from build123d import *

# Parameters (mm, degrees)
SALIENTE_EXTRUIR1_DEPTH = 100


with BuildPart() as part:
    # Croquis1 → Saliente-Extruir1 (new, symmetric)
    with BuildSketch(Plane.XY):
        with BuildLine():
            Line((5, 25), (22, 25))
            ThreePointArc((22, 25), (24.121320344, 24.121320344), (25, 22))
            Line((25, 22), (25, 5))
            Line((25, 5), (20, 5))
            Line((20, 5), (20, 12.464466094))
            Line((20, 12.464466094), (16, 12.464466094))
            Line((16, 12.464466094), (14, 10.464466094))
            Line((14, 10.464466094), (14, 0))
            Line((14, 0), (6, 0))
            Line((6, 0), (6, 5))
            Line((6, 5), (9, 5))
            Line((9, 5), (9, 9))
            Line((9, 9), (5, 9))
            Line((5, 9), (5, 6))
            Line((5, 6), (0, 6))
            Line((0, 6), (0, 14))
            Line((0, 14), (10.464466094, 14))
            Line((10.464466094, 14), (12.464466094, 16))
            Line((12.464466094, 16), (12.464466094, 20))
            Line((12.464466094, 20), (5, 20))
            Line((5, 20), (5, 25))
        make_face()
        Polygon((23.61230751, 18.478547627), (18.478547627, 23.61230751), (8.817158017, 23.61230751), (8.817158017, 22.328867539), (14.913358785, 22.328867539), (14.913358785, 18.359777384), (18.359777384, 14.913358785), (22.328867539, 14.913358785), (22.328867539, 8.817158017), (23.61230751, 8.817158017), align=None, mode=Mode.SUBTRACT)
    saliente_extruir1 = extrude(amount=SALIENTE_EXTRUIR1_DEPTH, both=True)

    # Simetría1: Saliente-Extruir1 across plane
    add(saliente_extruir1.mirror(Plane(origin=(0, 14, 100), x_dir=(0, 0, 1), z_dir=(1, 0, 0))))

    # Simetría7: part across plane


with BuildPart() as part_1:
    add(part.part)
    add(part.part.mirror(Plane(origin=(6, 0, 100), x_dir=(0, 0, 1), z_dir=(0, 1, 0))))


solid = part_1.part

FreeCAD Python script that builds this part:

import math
import FreeCAD as App
import Part
import Sketcher

V = App.Vector

doc = App.newDocument("Part")
body = doc.addObject("PartDesign::Body", "Body")

sketch1 = body.newObject("Sketcher::SketchObject", "Sketch")
sketch1.AttachmentSupport = (doc.getObject("XY_Plane"), [""])
sketch1.MapMode = "FlatFace"
sketch1.addGeometry(Part.LineSegment(V(22, 25, 0), V(5, 25, 0)), False)
sketch1.addGeometry(Part.LineSegment(V(5, 25, 0), V(5, 20, 0)), False)
sketch1.addGeometry(Part.LineSegment(V(5, 20, 0), V(12.5, 20, 0)), False)
sketch1.addGeometry(Part.LineSegment(V(12.5, 20, 0), V(12.5, 16, 0)), False)
sketch1.addGeometry(Part.LineSegment(V(12.5, 16, 0), V(10.5, 14, 0)), False)
sketch1.addGeometry(Part.LineSegment(V(10.5, 14, 0), V(0, 14, 0)), False)
sketch1.addGeometry(Part.LineSegment(V(0, 14, 0), V(0, 6, 0)), False)
sketch1.addGeometry(Part.LineSegment(V(0, 6, 0), V(5, 6, 0)), False)
sketch1.addGeometry(Part.LineSegment(V(5, 6, 0), V(5, 9, 0)), False)
sketch1.addGeometry(Part.LineSegment(V(5, 9, 0), V(9, 9, 0)), False)
sketch1.addGeometry(Part.LineSegment(V(9, 9, 0), V(9, 5, 0)), False)
sketch1.addGeometry(Part.LineSegment(V(9, 5, 0), V(6, 5, 0)), False)
sketch1.addGeometry(Part.LineSegment(V(6, 5, 0), V(6, 0, 0)), False)
sketch1.addGeometry(Part.LineSegment(V(6, 0, 0), V(14, 0, 0)), False)
sketch1.addGeometry(Part.LineSegment(V(14, 0, 0), V(14, 10.5, 0)), False)
sketch1.addGeometry(Part.LineSegment(V(14, 10.5, 0), V(16, 12.5, 0)), False)
sketch1.addGeometry(Part.LineSegment(V(16, 12.5, 0), V(20, 12.5, 0)), False)
sketch1.addGeometry(Part.LineSegment(V(20, 12.5, 0), V(20, 5, 0)), False)
sketch1.addGeometry(Part.LineSegment(V(20, 5, 0), V(25, 5, 0)), False)
sketch1.addGeometry(Part.LineSegment(V(25, 5, 0), V(25, 22, 0)), False)
sketch1.addGeometry(Part.ArcOfCircle(Part.Circle(V(22, 22, 0), V(0, 0, 1), 3), math.radians(0), math.radians(90)), False)
sketch1.addGeometry(Part.LineSegment(V(23.6, 18.5, 0), V(23.6, 8.8, 0)), False)
sketch1.addGeometry(Part.LineSegment(V(23.6, 8.8, 0), V(22.3, 8.8, 0)), False)
sketch1.addGeometry(Part.LineSegment(V(22.3, 8.8, 0), V(22.3, 14.9, 0)), False)
sketch1.addGeometry(Part.LineSegment(V(22.3, 14.9, 0), V(18.4, 14.9, 0)), False)
sketch1.addGeometry(Part.LineSegment(V(18.4, 14.9, 0), V(14.9, 18.4, 0)), False)
sketch1.addGeometry(Part.LineSegment(V(14.9, 18.4, 0), V(14.9, 22.3, 0)), False)
sketch1.addGeometry(Part.LineSegment(V(14.9, 22.3, 0), V(8.8, 22.3, 0)), False)
sketch1.addGeometry(Part.LineSegment(V(8.8, 22.3, 0), V(8.8, 23.6, 0)), False)
sketch1.addGeometry(Part.LineSegment(V(8.8, 23.6, 0), V(18.5, 23.6, 0)), False)
sketch1.addGeometry(Part.LineSegment(V(18.5, 23.6, 0), V(23.6, 18.5, 0)), False)
sketch1.addConstraint(Sketcher.Constraint("Coincident", 0, 2, 1, 1))
sketch1.addConstraint(Sketcher.Constraint("Coincident", 1, 2, 2, 1))
sketch1.addConstraint(Sketcher.Constraint("Coincident", 2, 2, 3, 1))
sketch1.addConstraint(Sketcher.Constraint("Coincident", 3, 2, 4, 1))
sketch1.addConstraint(Sketcher.Constraint("Coincident", 4, 2, 5, 1))
sketch1.addConstraint(Sketcher.Constraint("Coincident", 5, 2, 6, 1))
sketch1.addConstraint(Sketcher.Constraint("Coincident", 6, 2, 7, 1))
sketch1.addConstraint(Sketcher.Constraint("Coincident", 7, 2, 8, 1))
sketch1.addConstraint(Sketcher.Constraint("Coincident", 8, 2, 9, 1))
sketch1.addConstraint(Sketcher.Constraint("Coincident", 9, 2, 10, 1))
sketch1.addConstraint(Sketcher.Constraint("Coincident", 10, 2, 11, 1))
sketch1.addConstraint(Sketcher.Constraint("Coincident", 11, 2, 12, 1))
sketch1.addConstraint(Sketcher.Constraint("Coincident", 12, 2, 13, 1))
sketch1.addConstraint(Sketcher.Constraint("Coincident", 13, 2, 14, 1))
sketch1.addConstraint(Sketcher.Constraint("Coincident", 14, 2, 15, 1))
sketch1.addConstraint(Sketcher.Constraint("Coincident", 15, 2, 16, 1))
sketch1.addConstraint(Sketcher.Constraint("Coincident", 16, 2, 17, 1))
sketch1.addConstraint(Sketcher.Constraint("Coincident", 17, 2, 18, 1))
sketch1.addConstraint(Sketcher.Constraint("Coincident", 18, 2, 19, 1))
sketch1.addConstraint(Sketcher.Constraint("Tangent", 19, 2, 20, 1))
sketch1.addConstraint(Sketcher.Constraint("Tangent", 20, 2, 0, 1))
sketch1.addConstraint(Sketcher.Constraint("Coincident", 21, 2, 22, 1))
sketch1.addConstraint(Sketcher.Constraint("Coincident", 22, 2, 23, 1))
sketch1.addConstraint(Sketcher.Constraint("Coincident", 23, 2, 24, 1))
sketch1.addConstraint(Sketcher.Constraint("Coincident", 24, 2, 25, 1))
sketch1.addConstraint(Sketcher.Constraint("Coincident", 25, 2, 26, 1))
sketch1.addConstraint(Sketcher.Constraint("Coincident", 26, 2, 27, 1))
sketch1.addConstraint(Sketcher.Constraint("Coincident", 27, 2, 28, 1))
sketch1.addConstraint(Sketcher.Constraint("Coincident", 28, 2, 29, 1))
sketch1.addConstraint(Sketcher.Constraint("Coincident", 29, 2, 30, 1))
sketch1.addConstraint(Sketcher.Constraint("Coincident", 30, 2, 21, 1))
sketch1.addConstraint(Sketcher.Constraint("Horizontal", 0))
sketch1.addConstraint(Sketcher.Constraint("Vertical", 1))
sketch1.addConstraint(Sketcher.Constraint("Horizontal", 2))
sketch1.addConstraint(Sketcher.Constraint("Vertical", 3))
sketch1.addConstraint(Sketcher.Constraint("Horizontal", 5))
sketch1.addConstraint(Sketcher.Constraint("Vertical", 6))
sketch1.addConstraint(Sketcher.Constraint("Horizontal", 7))
sketch1.addConstraint(Sketcher.Constraint("Vertical", 8))
sketch1.addConstraint(Sketcher.Constraint("Horizontal", 9))
sketch1.addConstraint(Sketcher.Constraint("Vertical", 10))
sketch1.addConstraint(Sketcher.Constraint("Horizontal", 11))
sketch1.addConstraint(Sketcher.Constraint("Vertical", 12))
sketch1.addConstraint(Sketcher.Constraint("Horizontal", 13))
sketch1.addConstraint(Sketcher.Constraint("Vertical", 14))
sketch1.addConstraint(Sketcher.Constraint("Horizontal", 16))
sketch1.addConstraint(Sketcher.Constraint("Vertical", 17))
sketch1.addConstraint(Sketcher.Constraint("Horizontal", 18))
sketch1.addConstraint(Sketcher.Constraint("Vertical", 19))
sketch1.addConstraint(Sketcher.Constraint("Vertical", 21))
sketch1.addConstraint(Sketcher.Constraint("Horizontal", 22))
sketch1.addConstraint(Sketcher.Constraint("Vertical", 23))
sketch1.addConstraint(Sketcher.Constraint("Horizontal", 24))
sketch1.addConstraint(Sketcher.Constraint("Vertical", 26))
sketch1.addConstraint(Sketcher.Constraint("Horizontal", 27))
sketch1.addConstraint(Sketcher.Constraint("Vertical", 28))
sketch1.addConstraint(Sketcher.Constraint("Horizontal", 29))
sketch1.addConstraint(Sketcher.Constraint("PointOnObject", 5, 2, -2))
sketch1.addConstraint(Sketcher.Constraint("PointOnObject", 12, 2, -1))
sketch1.addConstraint(Sketcher.Constraint("Parallel", 4, 15))
sketch1.addConstraint(Sketcher.Constraint("Perpendicular", 15, 25))
sketch1.addConstraint(Sketcher.Constraint("Parallel", 25, 30))
sketch1.addConstraint(Sketcher.Constraint("Horizontal", 11, 2, 17, 2))
sketch1.addConstraint(Sketcher.Constraint("Vertical", 1, 2, 7, 2))
sketch1.addConstraint(Sketcher.Constraint("Equal", 9, 16))
sketch1.addConstraint(Sketcher.Constraint("Equal", 7, 18))
sketch1.addConstraint(Sketcher.Constraint("Equal", 18, 1))
sketch1.addConstraint(Sketcher.Constraint("Equal", 16, 3))
sketch1.addConstraint(Sketcher.Constraint("Equal", 13, 6))
sketch1.addConstraint(Sketcher.Constraint("Equal", 11, 8))
sketch1.addConstraint(Sketcher.Constraint("Equal", 3, 10))
sketch1.addConstraint(Sketcher.Constraint("Equal", 1, 12))
sketch1.addConstraint(Sketcher.Constraint("Equal", 5, 14))
sketch1.addConstraint(Sketcher.Constraint("Equal", 2, 17))
sketch1.addConstraint(Sketcher.Constraint("Equal", 0, 19))
sketch1.addConstraint(Sketcher.Constraint("Equal", 29, 21))
sketch1.addConstraint(Sketcher.Constraint("Equal", 27, 23))
sketch1.addConstraint(Sketcher.Constraint("Equal", 24, 26))
sketch1.addConstraint(Sketcher.Constraint("Radius", 20, 3.0))
sketch1.addConstraint(Sketcher.Constraint("DistanceX", 0, 2, 0, 1, 17.0))
sketch1.addConstraint(Sketcher.Constraint("DistanceX", 7, 1, 7, 2, 5.0))
sketch1.addConstraint(Sketcher.Constraint("DistanceX", 9, 1, 9, 2, 4.0))
sketch1.addConstraint(Sketcher.Constraint("DistanceX", 11, 2, 11, 1, 3.0))
sketch1.addConstraint(Sketcher.Constraint("DistanceX", 13, 1, 13, 2, 8.0))
sketch1.addConstraint(Sketcher.Constraint("DistanceX", 27, 2, 27, 1, 6.096201))
sketch1.addConstraint(Sketcher.Constraint("DistanceX", 22, 2, 22, 1, 1.28344))
sketch1.addConstraint(Sketcher.Constraint("DistanceX", 24, 2, 24, 1, 3.96909))
sketch1.addConstraint(Sketcher.Constraint("DistanceX", 29, 1, 29, 2, 9.66139))
sketch1.addConstraint(Sketcher.Constraint("Distance", 25, 4.873972))
sketch1.addConstraint(Sketcher.Constraint("DistanceX", 2, 1, 2, 2, 7.464466))
sketch1.addConstraint(Sketcher.Constraint("DistanceY", -1, 1, 21, 2, 8.817158))
sketch1.addConstraint(Sketcher.Constraint("DistanceX", -1, 1, 25, 2, 14.913359))
pad1 = body.newObject("PartDesign::Pad", "Pad")
pad1.Profile = sketch1
pad1.Length = 200
pad1.Midplane = True
doc.recompute()

mirrored = body.newObject("PartDesign::Mirrored", "Mirrored")
mirrored.Originals = [pad1]
mirrored.MirrorPlane = (doc.getObject("YZ_Plane"), [""])
body.Tip = mirrored
body2 = doc.addObject("PartDesign::Body", "Body001")
doc.recompute()

body2.BaseFeature = body
doc.recompute()

mirroring = doc.addObject("Part::Mirroring", "Mirroring")
mirroring.Source = body
mirroring.Base = V(6, 0, 100)
mirroring.Normal = V(0, 1, 0)
body3 = doc.addObject("PartDesign::Body", "Body002")
body3.BaseFeature = mirroring
boolean = body2.newObject("PartDesign::Boolean", "Boolean")
boolean.Type = "Fuse"
boolean.addObjects([body3])
doc.recompute()
mirroring.Visibility = False

doc.recompute()
